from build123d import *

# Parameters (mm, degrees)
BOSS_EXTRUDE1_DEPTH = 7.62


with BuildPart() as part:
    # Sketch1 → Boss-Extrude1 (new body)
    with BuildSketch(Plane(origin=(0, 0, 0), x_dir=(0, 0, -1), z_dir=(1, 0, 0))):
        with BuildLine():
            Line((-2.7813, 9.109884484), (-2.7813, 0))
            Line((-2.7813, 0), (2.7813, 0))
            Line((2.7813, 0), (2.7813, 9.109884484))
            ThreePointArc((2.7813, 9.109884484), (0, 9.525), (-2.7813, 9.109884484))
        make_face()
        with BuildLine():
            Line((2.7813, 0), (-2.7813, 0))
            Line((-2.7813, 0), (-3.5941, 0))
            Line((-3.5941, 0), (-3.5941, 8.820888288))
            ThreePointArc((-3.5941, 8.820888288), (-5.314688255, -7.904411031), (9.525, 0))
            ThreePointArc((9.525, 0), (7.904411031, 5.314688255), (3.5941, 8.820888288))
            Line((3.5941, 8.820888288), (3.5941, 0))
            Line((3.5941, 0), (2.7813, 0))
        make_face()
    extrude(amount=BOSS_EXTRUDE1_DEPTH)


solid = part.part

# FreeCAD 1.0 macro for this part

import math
import FreeCAD as App
import Part
import Sketcher
from FreeCAD import Vector
Q = App.Units.Quantity

doc = App.newDocument("Part")
body = doc.addObject("PartDesign::Body", "Body")

# Sketch on YZ plane
sketch1 = doc.addObject("Sketcher::SketchObject", "Sketch")
body.addObject(sketch1)
sketch1.AttachmentSupport = (doc.YZ_Plane, [""])
sketch1.MapMode = "FlatFace"
sketch1.addGeometry(Part.LineSegment(Vector(9.109884, 2.7813, 0), Vector(0, 2.7813, 0)), False)
sketch1.addGeometry(Part.LineSegment(Vector(0, 2.7813, 0), Vector(0, 3.5941, 0)), False)
sketch1.addGeometry(Part.LineSegment(Vector(0, 3.5941, 0), Vector(8.820888, 3.5941, 0)), False)
sketch1.addGeometry(Part.ArcOfCircle(Part.Circle(Vector(0, 0, 0), Vector(0, 0, 1), 9.525), math.radians(22.168601), math.radians(270)), False)
sketch1.addGeometry(Part.ArcOfCircle(Part.Circle(Vector(0, 0, 0), Vector(0, 0, 1), 9.525), math.radians(-90), math.radians(-22.168601)), False)
sketch1.addGeometry(Part.LineSegment(Vector(8.820888, -3.5941, 0), Vector(0, -3.5941, 0)), False)
sketch1.addGeometry(Part.LineSegment(Vector(0, -3.5941, 0), Vector(0, -2.7813, 0)), False)
sketch1.addGeometry(Part.LineSegment(Vector(0, -2.7813, 0), Vector(9.109884, -2.7813, 0)), False)
sketch1.addGeometry(Part.ArcOfCircle(Part.Circle(Vector(0, 0, 0), Vector(0, 0, 1), 9.525), math.radians(-16.977731), math.radians(16.977731)), False)
sketch1.addConstraint(Sketcher.Constraint("Coincident", 0, 2, 1, 1))
sketch1.addConstraint(Sketcher.Constraint("Coincident", 1, 2, 2, 1))
sketch1.addConstraint(Sketcher.Constraint("Coincident", 2, 2, 3, 1))
sketch1.addConstraint(Sketcher.Constraint("Tangent", 3, 2, 4, 1))
sketch1.addConstraint(Sketcher.Constraint("Coincident", 4, 2, 5, 1))
sketch1.addConstraint(Sketcher.Constraint("Coincident", 5, 2, 6, 1))
sketch1.addConstraint(Sketcher.Constraint("Coincident", 6, 2, 7, 1))
sketch1.addConstraint(Sketcher.Constraint("Coincident", 7, 2, 8, 1))
sketch1.addConstraint(Sketcher.Constraint("Coincident", 8, 2, 0, 1))
sketch1.addConstraint(Sketcher.Constraint("Horizontal", 0))
sketch1.addConstraint(Sketcher.Constraint("Vertical", 1))
sketch1.addConstraint(Sketcher.Constraint("Horizontal", 2))
sketch1.addConstraint(Sketcher.Constraint("Horizontal", 5))
sketch1.addConstraint(Sketcher.Constraint("Vertical", 6))
sketch1.addConstraint(Sketcher.Constraint("Horizontal", 7))
sketch1.addConstraint(Sketcher.Constraint("Coincident", 3, 3, -1, 1))
sketch1.addConstraint(Sketcher.Constraint("Coincident", 8, 3, -1, 1))
sketch1.addConstraint(Sketcher.Constraint("Equal", 3, 4))
sketch1.addConstraint(Sketcher.Constraint("Equal", 4, 8))
sketch1.addConstraint(Sketcher.Constraint("Symmetric", 1, 2, 5, 2, -1, 1))
sketch1.addConstraint(Sketcher.Constraint("Symmetric", 0, 2, 6, 2, -1))
sketch1.addConstraint(Sketcher.Constraint("PointOnObject", 3, 2, -2))
sketch1.addConstraint(Sketcher.Constraint("Radius", 3, Q("0.375 in")))
sketch1.addConstraint(Sketcher.Constraint("DistanceY", 1, 1, 1, 2, Q("0.032 in")))
sketch1.addConstraint(Sketcher.Constraint("DistanceY", 4, 2, 2, 2, Q("0.283 in")))
pad1 = doc.addObject("PartDesign::Pad", "Pad")
body.addObject(pad1)
pad1.Profile = sketch1
pad1.Length = Q("0.3 in")

doc.recompute()
